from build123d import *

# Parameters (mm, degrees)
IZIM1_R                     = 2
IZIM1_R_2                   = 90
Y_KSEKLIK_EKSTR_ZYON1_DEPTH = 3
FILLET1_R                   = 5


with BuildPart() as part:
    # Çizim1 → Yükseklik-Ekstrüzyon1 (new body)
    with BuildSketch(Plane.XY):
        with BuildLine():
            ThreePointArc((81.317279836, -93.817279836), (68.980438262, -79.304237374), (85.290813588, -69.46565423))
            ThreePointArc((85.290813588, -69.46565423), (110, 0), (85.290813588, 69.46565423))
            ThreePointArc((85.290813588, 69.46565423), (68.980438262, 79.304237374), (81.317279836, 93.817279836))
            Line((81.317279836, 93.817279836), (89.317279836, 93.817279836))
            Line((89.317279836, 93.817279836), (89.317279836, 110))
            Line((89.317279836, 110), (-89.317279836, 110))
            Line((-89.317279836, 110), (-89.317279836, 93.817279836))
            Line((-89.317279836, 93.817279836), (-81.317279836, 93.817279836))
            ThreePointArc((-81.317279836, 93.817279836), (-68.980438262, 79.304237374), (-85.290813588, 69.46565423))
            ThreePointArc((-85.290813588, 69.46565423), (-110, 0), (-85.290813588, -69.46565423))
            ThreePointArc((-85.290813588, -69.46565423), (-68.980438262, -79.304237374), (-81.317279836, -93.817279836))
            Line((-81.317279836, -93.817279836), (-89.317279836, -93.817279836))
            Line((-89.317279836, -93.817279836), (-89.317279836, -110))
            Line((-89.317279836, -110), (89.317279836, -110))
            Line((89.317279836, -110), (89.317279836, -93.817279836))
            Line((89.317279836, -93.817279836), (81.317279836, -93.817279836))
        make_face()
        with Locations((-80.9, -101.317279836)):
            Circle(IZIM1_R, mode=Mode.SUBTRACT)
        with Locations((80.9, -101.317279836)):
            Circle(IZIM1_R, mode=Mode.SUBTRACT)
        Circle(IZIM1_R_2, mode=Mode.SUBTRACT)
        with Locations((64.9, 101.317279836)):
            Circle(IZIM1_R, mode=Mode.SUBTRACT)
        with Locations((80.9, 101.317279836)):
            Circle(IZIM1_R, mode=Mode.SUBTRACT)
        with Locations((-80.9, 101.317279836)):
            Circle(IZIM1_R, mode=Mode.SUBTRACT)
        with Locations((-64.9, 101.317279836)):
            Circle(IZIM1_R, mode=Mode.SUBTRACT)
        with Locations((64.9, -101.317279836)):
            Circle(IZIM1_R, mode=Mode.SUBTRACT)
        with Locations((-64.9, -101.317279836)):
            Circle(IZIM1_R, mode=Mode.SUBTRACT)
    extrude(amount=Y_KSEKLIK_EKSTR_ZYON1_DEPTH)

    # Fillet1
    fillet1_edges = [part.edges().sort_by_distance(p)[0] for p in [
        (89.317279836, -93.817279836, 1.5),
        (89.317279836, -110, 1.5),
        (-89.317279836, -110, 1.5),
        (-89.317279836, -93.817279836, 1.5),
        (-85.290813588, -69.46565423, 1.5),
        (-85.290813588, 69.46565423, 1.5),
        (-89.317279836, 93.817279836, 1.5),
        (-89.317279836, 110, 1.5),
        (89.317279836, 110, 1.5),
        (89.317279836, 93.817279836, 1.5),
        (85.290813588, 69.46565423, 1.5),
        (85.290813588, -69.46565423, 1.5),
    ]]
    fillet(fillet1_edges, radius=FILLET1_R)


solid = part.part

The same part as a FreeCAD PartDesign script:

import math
import FreeCAD as App
import Part
import Sketcher

V = App.Vector


def edges_at(feature, points):
    """Names of the edges that pass closest to the given points."""
    edges = feature.Shape.Edges
    near = lambda p: min(range(len(edges)), key=lambda i: edges[i].distToShape(Part.Vertex(*p))[0])
    return sorted({f"Edge{near(p) + 1}" for p in points})

doc = App.newDocument("Part")
body = doc.addObject("PartDesign::Body", "Body")

# Sketch on XY plane
sketch1 = body.newObject("Sketcher::SketchObject", "Sketch")
sketch1.AttachmentSupport = (doc.getObject("XY_Plane"), [""])
sketch1.MapMode = "FlatFace"
sketch1.addGeometry([
    Part.ArcOfCircle(Part.Circle(V(81.31728, -81.31728, 0), V(0, 0, 1), 12.5), math.radians(71.465072), math.radians(270)),  # 0
    Part.ArcOfCircle(Part.Circle(V(0, 0, 0), V(0, 0, 1), 110), math.radians(-39.161316), math.radians(39.161316)),  # 1
    Part.ArcOfCircle(Part.Circle(V(81.31728, 81.31728, 0), V(0, 0, 1), 12.5), math.radians(90), math.radians(288.534928)),  # 2
    Part.LineSegment(V(81.31728, 93.81728, 0), V(89.31728, 93.81728, 0)),  # 3
    Part.LineSegment(V(89.31728, 93.81728, 0), V(89.31728, 110, 0)),  # 4
    Part.LineSegment(V(89.31728, 110, 0), V(-89.31728, 110, 0)),  # 5
    Part.LineSegment(V(-89.31728, 110, 0), V(-89.31728, 93.81728, 0)),  # 6
    Part.LineSegment(V(-89.31728, 93.81728, 0), V(-81.31728, 93.81728, 0)),  # 7
    Part.ArcOfCircle(Part.Circle(V(-81.31728, 81.31728, 0), V(0, 0, 1), 12.5), math.radians(-108.534928), math.radians(90)),  # 8
    Part.ArcOfCircle(Part.Circle(V(0, 0, 0), V(0, 0, 1), 110), math.radians(140.838684), math.radians(219.161316)),  # 9
    Part.ArcOfCircle(Part.Circle(V(-81.31728, -81.31728, 0), V(0, 0, 1), 12.5), math.radians(-90), math.radians(108.534928)),  # 10
    Part.LineSegment(V(-81.31728, -93.81728, 0), V(-89.31728, -93.81728, 0)),  # 11
    Part.LineSegment(V(-89.31728, -93.81728, 0), V(-89.31728, -110, 0)),  # 12
    Part.LineSegment(V(-89.31728, -110, 0), V(89.31728, -110, 0)),  # 13
    Part.LineSegment(V(89.31728, -110, 0), V(89.31728, -93.81728, 0)),  # 14
    Part.LineSegment(V(89.31728, -93.81728, 0), V(81.31728, -93.81728, 0)),  # 15
    Part.Circle(V(-80.9, -101.31728, 0), V(0, 0, 1), 2),  # 16
    Part.Circle(V(-64.9, -101.31728, 0), V(0, 0, 1), 2),  # 17
    Part.Circle(V(64.9, -101.31728, 0), V(0, 0, 1), 2),  # 18
    Part.Circle(V(80.9, -101.31728, 0), V(0, 0, 1), 2),  # 19
    Part.Circle(V(-80.9, 101.31728, 0), V(0, 0, 1), 2),  # 20
    Part.Circle(V(-64.9, 101.31728, 0), V(0, 0, 1), 2),  # 21
    Part.Circle(V(0, 0, 0), V(0, 0, 1), 90),  # 22
    Part.Circle(V(64.9, 101.31728, 0), V(0, 0, 1), 2),  # 23
    Part.Circle(V(80.9, 101.31728, 0), V(0, 0, 1), 2),  # 24
], False)
sketch1.addConstraint([
    Sketcher.Constraint("Coincident", 0, 1, 1, 1),
    Sketcher.Constraint("Coincident", 1, 2, 2, 2),
    Sketcher.Constraint("Tangent", 2, 1, 3, 1),
    Sketcher.Constraint("Coincident", 3, 2, 4, 1),
    Sketcher.Constraint("Coincident", 4, 2, 5, 1),
    Sketcher.Constraint("Coincident", 5, 2, 6, 1),
    Sketcher.Constraint("Coincident", 6, 2, 7, 1),
    Sketcher.Constraint("Tangent", 7, 2, 8, 2),
    Sketcher.Constraint("Coincident", 8, 1, 9, 1),
    Sketcher.Constraint("Coincident", 9, 2, 10, 2),
    Sketcher.Constraint("Tangent", 10, 1, 11, 1),
    Sketcher.Constraint("Coincident", 11, 2, 12, 1),
    Sketcher.Constraint("Coincident", 12, 2, 13, 1),
    Sketcher.Constraint("Coincident", 13, 2, 14, 1),
    Sketcher.Constraint("Coincident", 14, 2, 15, 1),
    Sketcher.Constraint("Tangent", 15, 2, 0, 2),
    Sketcher.Constraint("Horizontal", 3),
    Sketcher.Constraint("Vertical", 4),
    Sketcher.Constraint("Horizontal", 5),
    Sketcher.Constraint("Vertical", 6),
    Sketcher.Constraint("Horizontal", 7),
    Sketcher.Constraint("Horizontal", 11),
    Sketcher.Constraint("Vertical", 12),
    Sketcher.Constraint("Horizontal", 13),
    Sketcher.Constraint("Vertical", 14),
    Sketcher.Constraint("Horizontal", 15),
    Sketcher.Constraint("Coincident", 1, 3, -1, 1),
    Sketcher.Constraint("Coincident", 9, 3, -1, 1),
    Sketcher.Constraint("Coincident", 22, 3, -1, 1),
    Sketcher.Constraint("Equal", 0, 2),
    Sketcher.Constraint("Equal", 2, 8),
    Sketcher.Constraint("Equal", 1, 9),
    Sketcher.Constraint("Equal", 8, 10),
    Sketcher.Constraint("Equal", 16, 17),
    Sketcher.Constraint("Equal", 17, 18),
    Sketcher.Constraint("Equal", 18, 19),
    Sketcher.Constraint("Equal", 19, 20),
    Sketcher.Constraint("Equal", 20, 21),
    Sketcher.Constraint("Equal", 21, 23),
    Sketcher.Constraint("Equal", 23, 24),
    Sketcher.Constraint("Symmetric", 0, 3, 8, 3, -1, 1),
    Sketcher.Constraint("Symmetric", 2, 3, 10, 3, -1, 1),
    Sketcher.Constraint("Symmetric", 19, 3, 20, 3, -1, 1),
    Sketcher.Constraint("Symmetric", 18, 3, 21, 3, -1, 1),
    Sketcher.Constraint("Symmetric", 17, 3, 23, 3, -1, 1),
    Sketcher.Constraint("Symmetric", 16, 3, 24, 3, -1, 1),
    Sketcher.Constraint("Symmetric", 4, 2, 12, 2, -1, 1),
    Sketcher.Constraint("Symmetric", 2, 3, 8, 3, -2),
    Sketcher.Constraint("Symmetric", 17, 3, 18, 3, -2),
    Sketcher.Constraint("Symmetric", 16, 3, 19, 3, -2),
    Sketcher.Constraint("Horizontal", 16, 3, 17, 3),
    Sketcher.Constraint("Vertical", 6, 2, 11, 2),
    Sketcher.Constraint("Vertical", 4, 2, 13, 2),
    Sketcher.Constraint("Diameter", 16, 4.0),
    Sketcher.Constraint("Diameter", 22, 180.0),
    Sketcher.Constraint("Radius", 1, 110.0),
    Sketcher.Constraint("Radius", 0, 12.5),
    Sketcher.Constraint("DistanceX", 3, 1, 3, 2, 8.0),
    Sketcher.Constraint("DistanceY", -1, 1, 4, 2, 110.0),
    Sketcher.Constraint("DistanceY", 16, 3, 10, 3, 20.0),
    Sketcher.Constraint("DistanceX", 16, 3, 17, 3, 16.0),
    Sketcher.Constraint("DistanceX", 16, 3, -1, 1, 80.9),
    Sketcher.Constraint("DistanceX", 5, 2, 5, 1, 178.63456),
    Sketcher.Constraint("DistanceY", 4, 1, 4, 2, 16.18272),
])
pad1 = body.newObject("PartDesign::Pad", "Pad")
pad1.Profile = sketch1
pad1.Length = 3
doc.recompute()

fillet = body.newObject("PartDesign::Fillet", "Fillet")
fillet.Base = (pad1, edges_at(pad1, [
    (89.317, -93.817, 1.5),
    (89.317, -110, 1.5),
    (-89.317, -110, 1.5),
    (-89.317, -93.817, 1.5),
    (-85.291, -69.466, 1.5),
    (-85.291, 69.466, 1.5),
    (-89.317, 93.817, 1.5),
    (-89.317, 110, 1.5),
    (89.317, 110, 1.5),
    (89.317, 93.817, 1.5),
    (85.291, 69.466, 1.5),
    (85.291, -69.466, 1.5),
]))
fillet.Radius = 5

doc.recompute()
